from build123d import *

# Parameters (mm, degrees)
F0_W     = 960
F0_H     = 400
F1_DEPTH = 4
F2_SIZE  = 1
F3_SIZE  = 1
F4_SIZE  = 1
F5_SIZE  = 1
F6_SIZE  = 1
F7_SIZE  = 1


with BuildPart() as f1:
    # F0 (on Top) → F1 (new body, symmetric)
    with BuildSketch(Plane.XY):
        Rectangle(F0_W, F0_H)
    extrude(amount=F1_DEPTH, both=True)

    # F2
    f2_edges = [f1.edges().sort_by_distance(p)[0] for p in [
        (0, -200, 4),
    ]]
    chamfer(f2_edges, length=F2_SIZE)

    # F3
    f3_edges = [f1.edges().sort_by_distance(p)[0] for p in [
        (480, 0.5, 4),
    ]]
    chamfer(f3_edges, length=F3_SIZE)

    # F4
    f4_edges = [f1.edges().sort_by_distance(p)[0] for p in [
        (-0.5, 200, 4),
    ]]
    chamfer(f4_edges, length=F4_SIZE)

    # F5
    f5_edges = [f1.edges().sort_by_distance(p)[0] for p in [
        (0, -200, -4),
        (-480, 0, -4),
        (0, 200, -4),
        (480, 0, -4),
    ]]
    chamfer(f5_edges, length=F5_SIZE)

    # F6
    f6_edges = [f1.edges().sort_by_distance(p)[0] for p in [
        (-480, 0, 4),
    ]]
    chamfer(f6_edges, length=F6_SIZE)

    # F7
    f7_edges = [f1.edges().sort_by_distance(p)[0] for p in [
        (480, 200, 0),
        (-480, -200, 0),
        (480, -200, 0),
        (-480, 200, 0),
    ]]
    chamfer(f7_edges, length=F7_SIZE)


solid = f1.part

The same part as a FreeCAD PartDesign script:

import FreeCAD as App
import Part
import Sketcher

V = App.Vector


def edges_at(feature, points):
    """Names of the edges that pass closest to the given points."""
    edges = feature.Shape.Edges
    near = lambda p: min(range(len(edges)), key=lambda i: edges[i].distToShape(Part.Vertex(*p))[0])
    return sorted({f"Edge{near(p) + 1}" for p in points})

doc = App.newDocument("Part")
body = doc.addObject("PartDesign::Body", "Body")

# Sketch on XY plane
sketch1 = body.newObject("Sketcher::SketchObject", "Sketch")
sketch1.AttachmentSupport = (doc.getObject("XY_Plane"), [""])
sketch1.MapMode = "FlatFace"
sketch1.addGeometry([
    Part.LineSegment(V(-480, 200, 0), V(-480, -200, 0)),
    Part.LineSegment(V(-480, -200, 0), V(480, -200, 0)),
    Part.LineSegment(V(480, -200, 0), V(480, 200, 0)),
    Part.LineSegment(V(480, 200, 0), V(-480, 200, 0)),
], False)
sketch1.addConstraint([
    Sketcher.Constraint("Coincident", 0, 2, 1, 1),
    Sketcher.Constraint("Coincident", 1, 2, 2, 1),
    Sketcher.Constraint("Coincident", 2, 2, 3, 1),
    Sketcher.Constraint("Coincident", 3, 2, 0, 1),
    Sketcher.Constraint("Vertical", 0),
    Sketcher.Constraint("Horizontal", 1),
    Sketcher.Constraint("Vertical", 2),
    Sketcher.Constraint("Horizontal", 3),
    Sketcher.Constraint("Symmetric", 0, 2, 2, 2, -1, 1),
    Sketcher.Constraint("DistanceX", 1, 1, 1, 2, 960.0),
    Sketcher.Constraint("DistanceY", 0, 2, 0, 1, 400.0),
])
pad1 = body.newObject("PartDesign::Pad", "Pad")
pad1.Profile = sketch1
pad1.Length = 8
pad1.Midplane = True
doc.recompute()

chamfer = body.newObject("PartDesign::Chamfer", "Chamfer")
chamfer.Base = (pad1, edges_at(pad1, [(0, -200, 4)]))
chamfer.Size = 1
doc.recompute()

chamfer2 = body.newObject("PartDesign::Chamfer", "Chamfer001")
chamfer2.Base = (chamfer, edges_at(chamfer, [(480, 0.5, 4)]))
chamfer2.Size = 1
doc.recompute()

chamfer3 = body.newObject("PartDesign::Chamfer", "Chamfer002")
chamfer3.Base = (chamfer2, edges_at(chamfer2, [(-0.5, 200, 4)]))
chamfer3.Size = 1
doc.recompute()

chamfer4 = body.newObject("PartDesign::Chamfer", "Chamfer003")
chamfer4.Base = (chamfer3, edges_at(chamfer3, [
    (0, -200, -4),
    (-480, 0, -4),
    (0, 200, -4),
    (480, 0, -4),
]))
chamfer4.Size = 1
doc.recompute()

chamfer5 = body.newObject("PartDesign::Chamfer", "Chamfer004")
chamfer5.Base = (chamfer4, edges_at(chamfer4, [(-480, 0, 4)]))
chamfer5.Size = 1
doc.recompute()

chamfer6 = body.newObject("PartDesign::Chamfer", "Chamfer005")
chamfer6.Base = (chamfer5, edges_at(chamfer5, [
    (480, 200, 0),
    (-480, -200, 0),
    (480, -200, 0),
    (-480, 200, 0),
]))
chamfer6.Size = 1

doc.recompute()
